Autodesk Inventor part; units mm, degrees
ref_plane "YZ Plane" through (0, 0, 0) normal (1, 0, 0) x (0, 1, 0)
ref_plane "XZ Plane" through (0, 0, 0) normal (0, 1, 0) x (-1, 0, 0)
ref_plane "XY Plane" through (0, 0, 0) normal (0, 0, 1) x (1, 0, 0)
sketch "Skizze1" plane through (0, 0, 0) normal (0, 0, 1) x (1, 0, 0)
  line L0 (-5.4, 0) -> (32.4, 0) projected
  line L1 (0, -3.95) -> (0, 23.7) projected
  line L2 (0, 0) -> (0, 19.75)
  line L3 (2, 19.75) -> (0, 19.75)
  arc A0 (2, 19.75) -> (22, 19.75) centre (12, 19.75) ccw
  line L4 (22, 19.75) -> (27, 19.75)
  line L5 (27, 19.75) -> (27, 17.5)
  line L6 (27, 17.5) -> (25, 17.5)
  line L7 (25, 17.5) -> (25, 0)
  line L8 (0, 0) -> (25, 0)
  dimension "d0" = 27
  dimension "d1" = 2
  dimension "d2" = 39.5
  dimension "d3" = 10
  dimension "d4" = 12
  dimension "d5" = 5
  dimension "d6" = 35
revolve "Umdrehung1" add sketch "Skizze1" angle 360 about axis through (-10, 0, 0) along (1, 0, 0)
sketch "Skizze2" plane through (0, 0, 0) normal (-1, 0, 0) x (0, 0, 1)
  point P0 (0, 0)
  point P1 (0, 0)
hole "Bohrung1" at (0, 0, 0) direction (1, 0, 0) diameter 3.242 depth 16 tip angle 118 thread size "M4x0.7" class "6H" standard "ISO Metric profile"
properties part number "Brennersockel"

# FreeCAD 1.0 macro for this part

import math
import FreeCAD as App
import Part
import Sketcher

V = App.Vector

doc = App.newDocument("Part")
params = doc.addObject("Spreadsheet::Sheet", "Params")
for row, (alias, value) in enumerate([
    ("sketch1_radius", "10 mm"),
    ("sketch1_width", "2 mm"),
    ("sketch1_width2", "5 mm"),
    ("sketch1_height", "17.5 mm"),
    ("sketch1_height2", "19.75 mm"),
    ("revolution_angle", "360 deg"),
    ("hole_diameter", "3.242 mm"),
    ("hole_depth", "16 mm"),
], start=1):
    params.set(f"A{row}", alias)
    params.set(f"B{row}", "=" + value)
    params.setAlias(f"B{row}", alias)

body = doc.addObject("PartDesign::Body", "Body")

sketch1 = doc.addObject("Sketcher::SketchObject", "Sketch")
body.addObject(sketch1)
sketch1.AttachmentSupport = (doc.XY_Plane, [""])
sketch1.MapMode = "FlatFace"
sketch1.addGeometry(Part.LineSegment(V(0, 19.8, 0), V(0, 0, 0)), False)
sketch1.addGeometry(Part.LineSegment(V(0, 0, 0), V(25, 0, 0)), False)
sketch1.addGeometry(Part.LineSegment(V(25, 0, 0), V(25, 17.5, 0)), False)
sketch1.addGeometry(Part.LineSegment(V(25, 17.5, 0), V(27, 17.5, 0)), False)
sketch1.addGeometry(Part.LineSegment(V(27, 17.5, 0), V(27, 19.8, 0)), False)
sketch1.addGeometry(Part.LineSegment(V(27, 19.8, 0), V(22, 19.8, 0)), False)
sketch1.addGeometry(Part.ArcOfCircle(Part.Circle(V(12, 19.8, 0), V(0, 0, 1), 10), math.radians(180), math.radians(360)), False)
sketch1.addGeometry(Part.LineSegment(V(2, 19.8, 0), V(0, 19.8, 0)), False)
sketch1.addConstraint(Sketcher.Constraint("Coincident", 0, 2, 1, 1))
sketch1.addConstraint(Sketcher.Constraint("Coincident", 1, 2, 2, 1))
sketch1.addConstraint(Sketcher.Constraint("Coincident", 2, 2, 3, 1))
sketch1.addConstraint(Sketcher.Constraint("Coincident", 3, 2, 4, 1))
sketch1.addConstraint(Sketcher.Constraint("Coincident", 4, 2, 5, 1))
sketch1.addConstraint(Sketcher.Constraint("Coincident", 5, 2, 6, 2))
sketch1.addConstraint(Sketcher.Constraint("Coincident", 6, 1, 7, 1))
sketch1.addConstraint(Sketcher.Constraint("Coincident", 7, 2, 0, 1))
sketch1.addConstraint(Sketcher.Constraint("Vertical", 0))
sketch1.addConstraint(Sketcher.Constraint("Horizontal", 1))
sketch1.addConstraint(Sketcher.Constraint("Vertical", 2))
sketch1.addConstraint(Sketcher.Constraint("Horizontal", 3))
sketch1.addConstraint(Sketcher.Constraint("Vertical", 4))
sketch1.addConstraint(Sketcher.Constraint("Horizontal", 5))
sketch1.addConstraint(Sketcher.Constraint("Horizontal", 7))
sketch1.addConstraint(Sketcher.Constraint("Coincident", 0, 2, -1, 1))
sketch1.addConstraint(Sketcher.Constraint("Horizontal", 6, 3, 4, 2))
sketch1.addConstraint(Sketcher.Constraint("Horizontal", 5, 2, 6, 1))
sketch1.addConstraint(Sketcher.Constraint("Equal", 3, 7))
sketch1.addConstraint(Sketcher.Constraint("Radius", 6, 10.0))
sketch1.addConstraint(Sketcher.Constraint("DistanceX", 3, 1, 3, 2, 2.0))
sketch1.addConstraint(Sketcher.Constraint("DistanceX", 5, 2, 5, 1, 5.0))
sketch1.addConstraint(Sketcher.Constraint("DistanceY", 2, 1, 2, 2, 17.5))
sketch1.addConstraint(Sketcher.Constraint("DistanceY", 0, 2, 0, 1, 19.75))
sketch1.setExpression("Constraints[19]", "Params.sketch1_radius")
sketch1.setExpression("Constraints[20]", "Params.sketch1_width")
sketch1.setExpression("Constraints[21]", "Params.sketch1_width2")
sketch1.setExpression("Constraints[22]", "Params.sketch1_height")
sketch1.setExpression("Constraints[23]", "Params.sketch1_height2")
revolution = doc.addObject("PartDesign::Revolution", "Revolution")
body.addObject(revolution)
revolution.Profile = sketch1
revolution.ReferenceAxis = (sketch1, ["H_Axis"])
revolution.setExpression("Angle", "Params.revolution_angle")

sketch2 = doc.addObject("Sketcher::SketchObject", "Sketch001")
body.addObject(sketch2)
sketch2.AttachmentSupport = (doc.YZ_Plane, [""])
sketch2.MapMode = "FlatFace"
sketch2.addGeometry(Part.Circle(V(0, 0, 0), V(0, 0, 1), 1.6), False)
sketch2.addConstraint(Sketcher.Constraint("Coincident", 0, 3, -1, 1))
sketch2.addConstraint(Sketcher.Constraint("Diameter", 0, 3.242))
doc.recompute()
hole = doc.addObject("PartDesign::Hole", "Hole")
body.addObject(hole)
hole.Profile = sketch2
hole.ThreadType = "None"
hole.setExpression("Diameter", "Params.hole_diameter")
hole.DepthType = "Dimension"
hole.setExpression("Depth", "Params.hole_depth")
hole.DrillPoint = "Angled"
hole.DrillPointAngle = 118
hole.Reversed = True

doc.recompute()
